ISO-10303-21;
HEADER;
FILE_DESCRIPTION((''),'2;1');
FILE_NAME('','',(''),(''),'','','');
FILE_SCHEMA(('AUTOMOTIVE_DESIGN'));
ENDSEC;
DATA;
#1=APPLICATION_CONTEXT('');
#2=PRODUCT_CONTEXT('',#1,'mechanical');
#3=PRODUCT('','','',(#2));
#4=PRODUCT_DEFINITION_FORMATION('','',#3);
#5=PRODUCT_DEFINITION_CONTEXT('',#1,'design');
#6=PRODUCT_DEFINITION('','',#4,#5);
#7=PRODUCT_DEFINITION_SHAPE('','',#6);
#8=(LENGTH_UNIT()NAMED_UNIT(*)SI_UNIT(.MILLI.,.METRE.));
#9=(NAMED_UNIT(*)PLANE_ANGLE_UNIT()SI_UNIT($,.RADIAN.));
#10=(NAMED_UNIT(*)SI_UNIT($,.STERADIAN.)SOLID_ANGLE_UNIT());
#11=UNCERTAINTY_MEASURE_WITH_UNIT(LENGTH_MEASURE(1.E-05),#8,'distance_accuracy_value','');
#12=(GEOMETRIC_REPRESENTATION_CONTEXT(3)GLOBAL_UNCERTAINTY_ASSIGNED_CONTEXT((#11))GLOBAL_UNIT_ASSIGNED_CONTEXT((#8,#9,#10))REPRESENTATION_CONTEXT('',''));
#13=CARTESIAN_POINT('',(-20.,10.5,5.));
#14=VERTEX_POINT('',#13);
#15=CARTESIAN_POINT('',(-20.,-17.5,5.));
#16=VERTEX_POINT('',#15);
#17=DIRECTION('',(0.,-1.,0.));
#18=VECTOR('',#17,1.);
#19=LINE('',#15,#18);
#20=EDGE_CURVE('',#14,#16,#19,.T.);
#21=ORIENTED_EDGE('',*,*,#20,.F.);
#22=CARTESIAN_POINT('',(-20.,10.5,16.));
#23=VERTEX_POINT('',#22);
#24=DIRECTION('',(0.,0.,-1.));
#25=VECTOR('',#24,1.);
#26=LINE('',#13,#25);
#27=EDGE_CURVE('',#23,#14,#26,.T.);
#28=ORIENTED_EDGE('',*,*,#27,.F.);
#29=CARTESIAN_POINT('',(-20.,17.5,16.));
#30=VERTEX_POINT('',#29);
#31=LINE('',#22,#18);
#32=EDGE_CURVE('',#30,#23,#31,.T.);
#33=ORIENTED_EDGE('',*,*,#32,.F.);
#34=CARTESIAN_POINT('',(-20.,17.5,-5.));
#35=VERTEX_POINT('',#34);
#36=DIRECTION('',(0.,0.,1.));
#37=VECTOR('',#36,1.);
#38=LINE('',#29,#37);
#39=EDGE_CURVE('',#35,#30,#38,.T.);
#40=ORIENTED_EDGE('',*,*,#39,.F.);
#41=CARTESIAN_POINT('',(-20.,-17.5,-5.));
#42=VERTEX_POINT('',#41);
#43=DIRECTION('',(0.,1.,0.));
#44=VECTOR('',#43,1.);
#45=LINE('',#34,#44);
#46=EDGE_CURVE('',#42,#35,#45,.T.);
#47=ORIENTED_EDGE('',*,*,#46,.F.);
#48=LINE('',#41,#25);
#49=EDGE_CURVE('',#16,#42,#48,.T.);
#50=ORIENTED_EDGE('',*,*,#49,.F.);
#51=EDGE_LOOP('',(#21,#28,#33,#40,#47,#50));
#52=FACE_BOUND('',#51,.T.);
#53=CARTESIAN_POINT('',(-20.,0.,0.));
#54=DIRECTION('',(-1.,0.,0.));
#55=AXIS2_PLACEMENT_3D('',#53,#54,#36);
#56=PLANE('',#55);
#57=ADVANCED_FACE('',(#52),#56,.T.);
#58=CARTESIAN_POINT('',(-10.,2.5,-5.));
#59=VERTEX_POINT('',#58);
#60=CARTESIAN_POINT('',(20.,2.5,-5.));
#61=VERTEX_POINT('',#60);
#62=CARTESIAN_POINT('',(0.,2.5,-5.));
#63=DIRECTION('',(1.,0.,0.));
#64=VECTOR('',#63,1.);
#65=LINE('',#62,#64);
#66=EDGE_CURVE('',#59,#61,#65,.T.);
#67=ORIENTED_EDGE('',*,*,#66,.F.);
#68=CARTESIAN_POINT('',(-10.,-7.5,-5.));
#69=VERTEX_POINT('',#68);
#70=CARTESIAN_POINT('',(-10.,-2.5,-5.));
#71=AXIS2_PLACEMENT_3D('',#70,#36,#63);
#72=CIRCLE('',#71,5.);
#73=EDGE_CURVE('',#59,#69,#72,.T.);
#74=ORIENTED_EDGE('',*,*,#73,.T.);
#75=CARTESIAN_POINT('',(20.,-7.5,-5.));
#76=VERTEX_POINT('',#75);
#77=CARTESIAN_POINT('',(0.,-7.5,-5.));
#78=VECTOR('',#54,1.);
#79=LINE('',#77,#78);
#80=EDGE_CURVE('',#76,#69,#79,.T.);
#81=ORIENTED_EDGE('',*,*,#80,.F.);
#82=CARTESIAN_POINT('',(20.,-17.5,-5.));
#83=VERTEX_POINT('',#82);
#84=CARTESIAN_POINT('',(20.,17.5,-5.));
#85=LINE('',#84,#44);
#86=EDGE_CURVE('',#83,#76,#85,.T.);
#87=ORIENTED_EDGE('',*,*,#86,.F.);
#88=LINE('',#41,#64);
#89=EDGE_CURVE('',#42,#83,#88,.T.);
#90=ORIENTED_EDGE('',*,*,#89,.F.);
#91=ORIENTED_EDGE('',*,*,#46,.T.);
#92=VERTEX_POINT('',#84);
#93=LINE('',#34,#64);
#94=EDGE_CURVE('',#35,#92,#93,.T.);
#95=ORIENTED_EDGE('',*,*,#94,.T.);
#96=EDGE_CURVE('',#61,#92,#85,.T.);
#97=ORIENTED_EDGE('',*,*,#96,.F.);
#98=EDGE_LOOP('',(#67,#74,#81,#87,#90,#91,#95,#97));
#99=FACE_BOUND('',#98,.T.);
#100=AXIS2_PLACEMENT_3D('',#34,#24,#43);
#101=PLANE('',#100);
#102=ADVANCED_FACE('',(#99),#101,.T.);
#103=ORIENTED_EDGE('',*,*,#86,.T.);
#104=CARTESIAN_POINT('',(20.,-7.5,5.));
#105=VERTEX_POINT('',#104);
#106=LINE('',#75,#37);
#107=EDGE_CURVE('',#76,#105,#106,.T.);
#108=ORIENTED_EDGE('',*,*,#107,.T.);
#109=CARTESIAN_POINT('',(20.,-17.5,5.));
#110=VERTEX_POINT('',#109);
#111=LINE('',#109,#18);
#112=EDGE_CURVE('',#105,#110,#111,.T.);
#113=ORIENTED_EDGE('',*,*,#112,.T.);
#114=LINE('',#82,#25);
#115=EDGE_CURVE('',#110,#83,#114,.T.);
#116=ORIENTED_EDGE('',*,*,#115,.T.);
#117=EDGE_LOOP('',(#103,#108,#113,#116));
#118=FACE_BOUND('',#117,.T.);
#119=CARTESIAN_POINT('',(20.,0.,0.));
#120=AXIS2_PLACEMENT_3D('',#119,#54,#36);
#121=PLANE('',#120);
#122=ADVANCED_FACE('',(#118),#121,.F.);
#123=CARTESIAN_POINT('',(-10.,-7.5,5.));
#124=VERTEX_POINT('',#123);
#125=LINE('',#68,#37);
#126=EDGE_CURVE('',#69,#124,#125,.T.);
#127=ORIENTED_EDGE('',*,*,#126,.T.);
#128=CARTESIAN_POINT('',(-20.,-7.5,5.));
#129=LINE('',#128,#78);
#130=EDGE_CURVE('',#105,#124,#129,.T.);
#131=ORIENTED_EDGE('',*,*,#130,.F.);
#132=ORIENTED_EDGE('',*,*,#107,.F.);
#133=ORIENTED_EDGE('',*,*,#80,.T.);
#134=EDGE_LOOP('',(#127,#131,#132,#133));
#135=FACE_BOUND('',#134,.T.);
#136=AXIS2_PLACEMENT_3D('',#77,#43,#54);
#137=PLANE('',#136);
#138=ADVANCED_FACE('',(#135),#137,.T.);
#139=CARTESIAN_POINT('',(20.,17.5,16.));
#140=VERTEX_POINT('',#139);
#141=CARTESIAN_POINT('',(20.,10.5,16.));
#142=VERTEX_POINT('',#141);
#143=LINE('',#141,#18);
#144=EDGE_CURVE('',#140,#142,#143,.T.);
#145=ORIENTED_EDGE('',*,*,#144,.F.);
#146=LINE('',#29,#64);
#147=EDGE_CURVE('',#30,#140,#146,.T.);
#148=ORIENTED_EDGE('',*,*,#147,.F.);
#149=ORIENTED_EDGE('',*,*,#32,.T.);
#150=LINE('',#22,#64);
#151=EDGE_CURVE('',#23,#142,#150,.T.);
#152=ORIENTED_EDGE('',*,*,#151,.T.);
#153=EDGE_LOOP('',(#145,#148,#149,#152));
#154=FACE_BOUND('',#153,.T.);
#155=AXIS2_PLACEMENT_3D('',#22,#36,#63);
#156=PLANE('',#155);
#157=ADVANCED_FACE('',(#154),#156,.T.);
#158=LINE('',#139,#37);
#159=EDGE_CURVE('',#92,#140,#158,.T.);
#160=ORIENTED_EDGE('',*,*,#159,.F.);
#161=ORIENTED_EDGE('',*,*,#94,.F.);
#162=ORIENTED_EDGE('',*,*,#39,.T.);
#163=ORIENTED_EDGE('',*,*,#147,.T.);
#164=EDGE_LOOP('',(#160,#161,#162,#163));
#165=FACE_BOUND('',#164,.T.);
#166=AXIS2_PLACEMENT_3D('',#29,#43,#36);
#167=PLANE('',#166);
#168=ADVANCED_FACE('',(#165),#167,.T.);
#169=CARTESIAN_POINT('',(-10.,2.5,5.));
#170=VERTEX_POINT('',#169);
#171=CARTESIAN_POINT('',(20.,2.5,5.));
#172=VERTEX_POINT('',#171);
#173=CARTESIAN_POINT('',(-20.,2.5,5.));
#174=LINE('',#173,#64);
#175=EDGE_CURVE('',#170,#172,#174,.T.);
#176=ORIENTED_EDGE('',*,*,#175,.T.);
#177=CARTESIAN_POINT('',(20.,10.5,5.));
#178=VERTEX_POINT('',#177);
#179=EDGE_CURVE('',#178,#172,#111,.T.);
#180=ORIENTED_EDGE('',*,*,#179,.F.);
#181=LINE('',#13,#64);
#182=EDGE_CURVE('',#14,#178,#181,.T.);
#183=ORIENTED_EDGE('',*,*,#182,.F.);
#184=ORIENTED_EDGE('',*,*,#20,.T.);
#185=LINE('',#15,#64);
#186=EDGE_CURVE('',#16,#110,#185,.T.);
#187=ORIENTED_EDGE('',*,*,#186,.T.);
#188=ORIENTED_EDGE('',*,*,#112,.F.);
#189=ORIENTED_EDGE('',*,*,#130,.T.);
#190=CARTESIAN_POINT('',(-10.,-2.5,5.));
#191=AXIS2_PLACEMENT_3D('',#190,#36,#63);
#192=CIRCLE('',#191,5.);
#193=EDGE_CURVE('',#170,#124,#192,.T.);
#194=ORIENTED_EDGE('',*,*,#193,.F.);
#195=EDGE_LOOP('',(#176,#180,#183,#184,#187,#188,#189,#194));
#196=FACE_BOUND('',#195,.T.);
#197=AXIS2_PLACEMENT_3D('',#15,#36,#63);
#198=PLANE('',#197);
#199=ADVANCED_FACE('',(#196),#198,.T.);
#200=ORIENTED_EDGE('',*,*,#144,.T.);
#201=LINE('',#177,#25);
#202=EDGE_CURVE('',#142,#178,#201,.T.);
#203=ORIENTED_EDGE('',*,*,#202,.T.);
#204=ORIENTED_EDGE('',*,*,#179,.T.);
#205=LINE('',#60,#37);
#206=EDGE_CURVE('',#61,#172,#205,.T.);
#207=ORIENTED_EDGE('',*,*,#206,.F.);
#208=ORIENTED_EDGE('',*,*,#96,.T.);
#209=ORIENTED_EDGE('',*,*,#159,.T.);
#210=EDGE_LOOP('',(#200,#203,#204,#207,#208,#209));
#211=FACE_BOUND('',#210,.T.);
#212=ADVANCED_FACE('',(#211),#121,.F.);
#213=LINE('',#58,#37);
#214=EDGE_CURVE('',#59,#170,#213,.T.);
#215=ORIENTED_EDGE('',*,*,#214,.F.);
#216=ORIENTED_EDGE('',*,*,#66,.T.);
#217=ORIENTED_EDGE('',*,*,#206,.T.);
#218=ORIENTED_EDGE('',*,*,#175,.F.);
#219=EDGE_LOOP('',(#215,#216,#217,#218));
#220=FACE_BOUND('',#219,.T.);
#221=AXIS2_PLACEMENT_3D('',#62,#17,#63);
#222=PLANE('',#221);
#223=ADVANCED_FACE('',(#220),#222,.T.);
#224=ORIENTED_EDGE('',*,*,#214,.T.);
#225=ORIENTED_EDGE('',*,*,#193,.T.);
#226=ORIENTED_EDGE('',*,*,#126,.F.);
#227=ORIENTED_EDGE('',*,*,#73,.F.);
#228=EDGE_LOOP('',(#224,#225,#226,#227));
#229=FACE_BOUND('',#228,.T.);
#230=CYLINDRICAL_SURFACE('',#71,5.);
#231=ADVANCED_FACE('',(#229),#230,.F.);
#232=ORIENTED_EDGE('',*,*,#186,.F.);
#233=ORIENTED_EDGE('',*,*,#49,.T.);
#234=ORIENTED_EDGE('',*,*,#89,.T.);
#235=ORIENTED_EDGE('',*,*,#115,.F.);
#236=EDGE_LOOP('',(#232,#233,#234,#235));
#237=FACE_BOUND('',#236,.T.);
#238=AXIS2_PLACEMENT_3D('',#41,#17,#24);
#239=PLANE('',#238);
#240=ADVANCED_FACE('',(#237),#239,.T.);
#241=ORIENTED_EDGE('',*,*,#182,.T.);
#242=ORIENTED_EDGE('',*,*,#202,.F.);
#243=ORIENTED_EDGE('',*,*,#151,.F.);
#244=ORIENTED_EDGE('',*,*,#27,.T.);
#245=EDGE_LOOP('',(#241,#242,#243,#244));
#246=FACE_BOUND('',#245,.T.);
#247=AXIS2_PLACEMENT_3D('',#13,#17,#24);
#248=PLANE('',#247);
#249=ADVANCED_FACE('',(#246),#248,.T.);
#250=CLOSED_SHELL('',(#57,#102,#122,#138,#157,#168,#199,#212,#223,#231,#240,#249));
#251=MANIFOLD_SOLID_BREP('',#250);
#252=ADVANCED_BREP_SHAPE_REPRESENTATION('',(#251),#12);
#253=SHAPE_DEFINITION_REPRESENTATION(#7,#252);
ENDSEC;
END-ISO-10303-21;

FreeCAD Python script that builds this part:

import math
import FreeCAD as App
import Part
import Sketcher

V = App.Vector
Q = App.Units.Quantity

doc = App.newDocument("Part")
body = doc.addObject("PartDesign::Body", "Body")

sketch1 = doc.addObject("Sketcher::SketchObject", "Sketch")
body.addObject(sketch1)
sketch1.AttachmentSupport = (doc.YZ_Plane, [""])
sketch1.MapMode = "FlatFace"
sketch1.addGeometry([
    Part.LineSegment(V(18, -5, 0), V(18, 16, 0)),
    Part.LineSegment(V(18, 16, 0), V(10, 16, 0)),
    Part.LineSegment(V(10, 16, 0), V(10, 5, 0)),
    Part.LineSegment(V(10, 5, 0), V(-18, 5, 0)),
    Part.LineSegment(V(-18, 5, 0), V(-18, -5, 0)),
    Part.LineSegment(V(-18, -5, 0), V(18, -5, 0)),
], False)
sketch1.addConstraint([
    Sketcher.Constraint("Coincident", 0, 2, 1, 1),
    Sketcher.Constraint("Coincident", 1, 2, 2, 1),
    Sketcher.Constraint("Coincident", 2, 2, 3, 1),
    Sketcher.Constraint("Coincident", 3, 2, 4, 1),
    Sketcher.Constraint("Coincident", 4, 2, 5, 1),
    Sketcher.Constraint("Coincident", 5, 2, 0, 1),
    Sketcher.Constraint("Vertical", 0),
    Sketcher.Constraint("Horizontal", 1),
    Sketcher.Constraint("Vertical", 2),
    Sketcher.Constraint("Horizontal", 3),
    Sketcher.Constraint("Vertical", 4),
    Sketcher.Constraint("Horizontal", 5),
    Sketcher.Constraint("Symmetric", 3, 2, 5, 2, -1, 1),
    Sketcher.Constraint("DistanceX", 1, 2, 1, 1, Q("7 mm")),
    Sketcher.Constraint("DistanceX", 3, 2, 3, 1, Q("28 mm")),
    Sketcher.Constraint("DistanceY", 0, 1, 0, 2, Q("21 mm")),
    Sketcher.Constraint("DistanceY", 2, 2, 2, 1, Q("11 mm")),
])
pad1 = doc.addObject("PartDesign::Pad", "Pad")
body.addObject(pad1)
pad1.Profile = sketch1
pad1.Type = "TwoLengths"
pad1.Length = 20
pad1.Length2 = 20

sketch2 = doc.addObject("Sketcher::SketchObject", "Sketch001")
body.addObject(sketch2)
sketch2.AttachmentSupport = (doc.XY_Plane, [""])
sketch2.MapMode = "FlatFace"
sketch2.addGeometry([
    Part.LineSegment(V(20, 2, 0), V(-10, 2, 0)),
    Part.ArcOfCircle(Part.Circle(V(-10, -2, 0), V(0, 0, 1), 5), math.radians(90), math.radians(180)),
    Part.ArcOfCircle(Part.Circle(V(-10, -2, 0), V(0, 0, 1), 5), math.radians(180), math.radians(270)),
    Part.LineSegment(V(-10, -8, 0), V(20, -8, 0)),
    Part.LineSegment(V(20, -8, 0), V(20, 2, 0)),
], False)
sketch2.addConstraint([
    Sketcher.Constraint("Tangent", 0, 2, 1, 1),
    Sketcher.Constraint("Tangent", 1, 2, 2, 1),
    Sketcher.Constraint("Tangent", 2, 2, 3, 1),
    Sketcher.Constraint("Coincident", 3, 2, 4, 1),
    Sketcher.Constraint("Coincident", 4, 2, 0, 1),
    Sketcher.Constraint("Horizontal", 0),
    Sketcher.Constraint("Horizontal", 3),
    Sketcher.Constraint("Vertical", 4),
    Sketcher.Constraint("Equal", 1, 2),
    Sketcher.Constraint("Horizontal", 2, 3, 1, 2),
    Sketcher.Constraint("Radius", 1, Q("5 mm")),
    Sketcher.Constraint("DistanceX", 0, 2, 0, 1, Q("30 mm")),
    Sketcher.Constraint("DistanceX", 1, 3, -1, 1, Q("10 mm")),
    Sketcher.Constraint("DistanceY", 1, 3, -1, 1, Q("2.5 mm")),
])
pocket1 = doc.addObject("PartDesign::Pocket", "Pocket")
body.addObject(pocket1)
pocket1.Profile = sketch2
pocket1.Type = "ThroughAll"
pocket1.Midplane = True

doc.recompute()
